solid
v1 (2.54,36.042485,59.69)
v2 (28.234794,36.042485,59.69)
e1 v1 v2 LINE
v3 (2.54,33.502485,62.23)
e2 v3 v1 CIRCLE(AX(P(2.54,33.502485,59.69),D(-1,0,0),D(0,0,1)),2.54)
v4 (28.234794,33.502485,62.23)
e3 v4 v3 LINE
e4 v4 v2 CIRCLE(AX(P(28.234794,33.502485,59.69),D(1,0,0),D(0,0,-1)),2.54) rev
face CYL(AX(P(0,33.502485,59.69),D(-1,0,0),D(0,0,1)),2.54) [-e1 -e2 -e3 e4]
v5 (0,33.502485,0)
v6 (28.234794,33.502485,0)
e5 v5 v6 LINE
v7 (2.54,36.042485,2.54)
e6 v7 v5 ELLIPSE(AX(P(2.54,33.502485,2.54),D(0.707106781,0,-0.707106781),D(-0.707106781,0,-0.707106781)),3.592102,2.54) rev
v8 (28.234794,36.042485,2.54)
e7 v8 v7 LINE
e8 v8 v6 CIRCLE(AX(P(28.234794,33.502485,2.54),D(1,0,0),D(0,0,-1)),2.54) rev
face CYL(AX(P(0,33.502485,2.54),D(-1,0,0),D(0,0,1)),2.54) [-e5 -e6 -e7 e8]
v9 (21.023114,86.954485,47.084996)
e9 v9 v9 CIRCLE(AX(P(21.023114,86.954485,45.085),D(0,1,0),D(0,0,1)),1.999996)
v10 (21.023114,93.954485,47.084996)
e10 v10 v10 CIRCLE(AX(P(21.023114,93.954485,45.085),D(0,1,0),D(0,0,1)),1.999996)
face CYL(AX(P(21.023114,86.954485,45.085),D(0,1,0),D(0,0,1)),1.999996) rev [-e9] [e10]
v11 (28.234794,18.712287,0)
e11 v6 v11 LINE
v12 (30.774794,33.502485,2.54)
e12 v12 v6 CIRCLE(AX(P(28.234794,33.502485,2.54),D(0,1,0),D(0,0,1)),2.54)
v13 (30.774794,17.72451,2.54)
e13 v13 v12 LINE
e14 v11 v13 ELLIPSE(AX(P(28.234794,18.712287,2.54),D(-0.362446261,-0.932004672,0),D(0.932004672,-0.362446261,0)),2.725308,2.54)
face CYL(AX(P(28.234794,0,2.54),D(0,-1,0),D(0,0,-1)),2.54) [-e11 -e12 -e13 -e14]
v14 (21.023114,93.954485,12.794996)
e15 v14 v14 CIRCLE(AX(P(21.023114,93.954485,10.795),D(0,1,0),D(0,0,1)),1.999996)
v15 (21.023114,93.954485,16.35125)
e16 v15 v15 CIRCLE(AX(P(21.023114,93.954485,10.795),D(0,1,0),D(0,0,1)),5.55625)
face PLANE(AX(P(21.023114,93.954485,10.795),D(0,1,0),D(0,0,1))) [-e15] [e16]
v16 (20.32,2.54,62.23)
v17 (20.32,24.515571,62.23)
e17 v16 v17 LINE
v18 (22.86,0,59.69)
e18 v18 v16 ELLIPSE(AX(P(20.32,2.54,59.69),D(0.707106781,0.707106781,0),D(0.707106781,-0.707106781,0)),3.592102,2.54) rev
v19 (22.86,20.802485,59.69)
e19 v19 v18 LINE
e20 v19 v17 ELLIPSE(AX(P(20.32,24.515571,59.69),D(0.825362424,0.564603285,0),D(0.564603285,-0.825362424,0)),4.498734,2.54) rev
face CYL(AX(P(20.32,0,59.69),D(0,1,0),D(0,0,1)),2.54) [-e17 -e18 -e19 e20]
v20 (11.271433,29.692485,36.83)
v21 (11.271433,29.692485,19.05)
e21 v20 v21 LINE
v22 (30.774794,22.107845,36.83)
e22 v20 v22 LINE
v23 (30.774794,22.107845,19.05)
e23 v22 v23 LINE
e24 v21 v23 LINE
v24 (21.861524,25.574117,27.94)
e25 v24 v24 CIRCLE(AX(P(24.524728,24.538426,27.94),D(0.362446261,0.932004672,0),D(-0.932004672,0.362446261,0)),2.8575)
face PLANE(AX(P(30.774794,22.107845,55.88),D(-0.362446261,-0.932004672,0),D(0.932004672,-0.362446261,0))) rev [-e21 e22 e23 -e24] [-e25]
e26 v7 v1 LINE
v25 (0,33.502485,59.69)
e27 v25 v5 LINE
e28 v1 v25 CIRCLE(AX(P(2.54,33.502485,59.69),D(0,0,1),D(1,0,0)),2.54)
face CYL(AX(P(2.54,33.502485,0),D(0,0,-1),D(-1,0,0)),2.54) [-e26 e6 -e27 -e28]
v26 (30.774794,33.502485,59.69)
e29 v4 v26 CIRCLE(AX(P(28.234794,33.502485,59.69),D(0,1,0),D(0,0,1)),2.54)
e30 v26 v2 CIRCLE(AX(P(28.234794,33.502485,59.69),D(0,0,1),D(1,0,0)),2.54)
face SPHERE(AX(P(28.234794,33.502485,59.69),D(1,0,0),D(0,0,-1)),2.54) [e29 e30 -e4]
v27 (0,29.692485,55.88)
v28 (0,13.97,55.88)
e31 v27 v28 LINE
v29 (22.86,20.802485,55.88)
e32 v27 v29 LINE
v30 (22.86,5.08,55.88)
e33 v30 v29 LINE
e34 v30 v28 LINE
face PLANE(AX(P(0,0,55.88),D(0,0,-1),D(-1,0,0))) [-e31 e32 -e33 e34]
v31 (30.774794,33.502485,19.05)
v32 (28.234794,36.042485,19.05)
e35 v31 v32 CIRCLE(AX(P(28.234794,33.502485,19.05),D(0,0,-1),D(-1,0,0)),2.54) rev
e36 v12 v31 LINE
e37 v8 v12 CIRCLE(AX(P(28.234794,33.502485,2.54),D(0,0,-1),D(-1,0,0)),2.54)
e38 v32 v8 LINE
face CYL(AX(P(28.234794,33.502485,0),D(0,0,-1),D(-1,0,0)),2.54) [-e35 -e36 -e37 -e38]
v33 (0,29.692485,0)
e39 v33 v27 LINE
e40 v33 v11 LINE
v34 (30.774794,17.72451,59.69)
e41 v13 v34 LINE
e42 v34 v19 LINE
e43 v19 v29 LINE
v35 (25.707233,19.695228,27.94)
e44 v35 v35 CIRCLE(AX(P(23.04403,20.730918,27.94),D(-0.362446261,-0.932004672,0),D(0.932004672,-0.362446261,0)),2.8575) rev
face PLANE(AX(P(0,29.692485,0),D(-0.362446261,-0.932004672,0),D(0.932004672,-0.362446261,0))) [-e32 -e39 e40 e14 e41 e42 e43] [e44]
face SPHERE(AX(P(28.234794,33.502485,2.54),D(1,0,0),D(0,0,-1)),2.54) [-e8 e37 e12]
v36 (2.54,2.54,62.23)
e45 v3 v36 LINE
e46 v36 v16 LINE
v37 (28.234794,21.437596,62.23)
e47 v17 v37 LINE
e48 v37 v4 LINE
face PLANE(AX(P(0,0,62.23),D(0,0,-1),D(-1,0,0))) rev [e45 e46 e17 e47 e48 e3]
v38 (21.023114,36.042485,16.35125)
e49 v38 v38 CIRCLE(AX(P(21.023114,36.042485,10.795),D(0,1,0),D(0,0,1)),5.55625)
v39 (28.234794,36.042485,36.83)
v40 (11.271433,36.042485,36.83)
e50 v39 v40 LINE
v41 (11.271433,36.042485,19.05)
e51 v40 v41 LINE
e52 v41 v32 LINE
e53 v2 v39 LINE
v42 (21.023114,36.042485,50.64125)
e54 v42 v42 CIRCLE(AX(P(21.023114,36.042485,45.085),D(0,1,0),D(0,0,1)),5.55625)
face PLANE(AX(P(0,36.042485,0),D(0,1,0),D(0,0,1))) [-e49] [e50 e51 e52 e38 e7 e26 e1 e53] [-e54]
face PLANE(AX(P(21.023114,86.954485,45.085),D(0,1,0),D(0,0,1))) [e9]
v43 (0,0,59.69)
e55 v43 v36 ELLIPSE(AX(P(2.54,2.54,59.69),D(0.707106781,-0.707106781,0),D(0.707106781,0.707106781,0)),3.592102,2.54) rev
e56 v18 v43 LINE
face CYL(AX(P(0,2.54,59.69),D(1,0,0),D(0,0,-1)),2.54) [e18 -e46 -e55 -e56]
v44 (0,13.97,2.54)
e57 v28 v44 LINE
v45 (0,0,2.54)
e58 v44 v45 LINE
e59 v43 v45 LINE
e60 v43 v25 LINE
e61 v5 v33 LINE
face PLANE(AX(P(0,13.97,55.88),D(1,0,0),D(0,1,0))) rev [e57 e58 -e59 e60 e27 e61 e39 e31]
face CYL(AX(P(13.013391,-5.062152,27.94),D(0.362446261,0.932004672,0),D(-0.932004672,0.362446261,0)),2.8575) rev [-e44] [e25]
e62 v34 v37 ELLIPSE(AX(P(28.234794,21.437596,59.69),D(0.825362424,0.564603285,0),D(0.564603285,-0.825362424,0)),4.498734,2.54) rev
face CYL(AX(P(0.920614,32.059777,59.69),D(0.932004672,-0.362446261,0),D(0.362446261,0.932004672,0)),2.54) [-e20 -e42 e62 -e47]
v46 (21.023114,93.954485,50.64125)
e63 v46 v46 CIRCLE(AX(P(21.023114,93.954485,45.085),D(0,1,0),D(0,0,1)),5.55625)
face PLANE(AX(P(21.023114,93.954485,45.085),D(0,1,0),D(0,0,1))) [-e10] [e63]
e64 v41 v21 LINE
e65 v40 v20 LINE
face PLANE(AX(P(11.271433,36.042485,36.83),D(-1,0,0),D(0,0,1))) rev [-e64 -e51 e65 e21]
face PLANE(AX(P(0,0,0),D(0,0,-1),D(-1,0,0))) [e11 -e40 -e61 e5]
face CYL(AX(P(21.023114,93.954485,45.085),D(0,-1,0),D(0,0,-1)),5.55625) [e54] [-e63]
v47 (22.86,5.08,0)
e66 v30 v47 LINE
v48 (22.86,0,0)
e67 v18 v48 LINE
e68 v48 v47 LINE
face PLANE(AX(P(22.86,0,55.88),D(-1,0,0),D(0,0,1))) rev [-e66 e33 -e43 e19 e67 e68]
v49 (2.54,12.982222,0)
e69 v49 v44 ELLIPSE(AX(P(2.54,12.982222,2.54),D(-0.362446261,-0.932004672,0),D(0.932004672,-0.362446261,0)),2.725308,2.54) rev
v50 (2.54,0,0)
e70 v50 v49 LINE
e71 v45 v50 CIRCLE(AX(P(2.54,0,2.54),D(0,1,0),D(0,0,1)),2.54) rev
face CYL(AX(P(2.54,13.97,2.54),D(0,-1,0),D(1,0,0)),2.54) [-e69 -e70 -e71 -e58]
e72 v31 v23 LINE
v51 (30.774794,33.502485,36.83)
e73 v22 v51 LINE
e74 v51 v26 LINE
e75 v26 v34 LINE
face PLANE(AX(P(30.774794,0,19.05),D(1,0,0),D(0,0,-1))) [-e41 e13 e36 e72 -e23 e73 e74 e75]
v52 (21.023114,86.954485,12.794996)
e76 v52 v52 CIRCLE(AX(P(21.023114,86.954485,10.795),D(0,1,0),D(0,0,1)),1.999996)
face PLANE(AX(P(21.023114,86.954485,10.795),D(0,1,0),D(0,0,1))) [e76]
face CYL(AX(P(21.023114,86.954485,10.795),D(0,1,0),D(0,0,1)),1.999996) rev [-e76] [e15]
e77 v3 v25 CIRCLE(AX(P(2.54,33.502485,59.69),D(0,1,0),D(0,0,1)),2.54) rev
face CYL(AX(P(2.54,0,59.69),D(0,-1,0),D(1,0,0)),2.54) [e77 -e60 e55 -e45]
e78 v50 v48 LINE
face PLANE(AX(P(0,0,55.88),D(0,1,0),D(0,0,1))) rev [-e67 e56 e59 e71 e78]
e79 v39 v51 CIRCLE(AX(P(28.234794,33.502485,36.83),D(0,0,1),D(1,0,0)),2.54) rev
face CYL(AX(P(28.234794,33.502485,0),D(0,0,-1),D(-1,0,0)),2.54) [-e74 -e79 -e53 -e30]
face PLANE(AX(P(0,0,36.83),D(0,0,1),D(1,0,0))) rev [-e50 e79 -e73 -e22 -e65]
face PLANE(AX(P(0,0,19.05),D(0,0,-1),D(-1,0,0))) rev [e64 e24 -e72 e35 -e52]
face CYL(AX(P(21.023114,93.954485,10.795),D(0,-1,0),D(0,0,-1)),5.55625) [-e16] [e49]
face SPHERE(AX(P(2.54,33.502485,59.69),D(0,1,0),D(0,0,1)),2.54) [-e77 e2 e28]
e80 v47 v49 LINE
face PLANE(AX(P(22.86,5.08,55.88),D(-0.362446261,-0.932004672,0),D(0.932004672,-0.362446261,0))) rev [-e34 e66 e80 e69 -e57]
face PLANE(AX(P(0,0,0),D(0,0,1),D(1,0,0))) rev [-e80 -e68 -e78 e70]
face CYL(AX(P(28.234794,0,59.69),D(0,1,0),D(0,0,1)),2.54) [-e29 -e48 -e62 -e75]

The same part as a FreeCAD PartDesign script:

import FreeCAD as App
import Part
import Sketcher
from FreeCAD import Vector
Q = App.Units.Quantity


def edges_at(feature, points):
    """Names of the edges that pass closest to the given points."""
    edges = feature.Shape.Edges
    near = lambda p: min(range(len(edges)), key=lambda i: edges[i].distToShape(Part.Vertex(*p))[0])
    return sorted({f"Edge{near(p) + 1}" for p in points})


def add_polygon(sketch, points):
    """Adds a closed chain of lines whose ends are joined by coincident constraints."""
    first, n = sketch.GeometryCount, len(points)
    for a, b in zip(points, points[1:] + points[:1]):
        sketch.addGeometry(Part.LineSegment(App.Vector(*a, 0), App.Vector(*b, 0)), False)
    for i in range(n):
        sketch.addConstraint(Sketcher.Constraint("Coincident", first + i, 2, first + (i + 1) % n, 1))

doc = App.newDocument("Part")
body = doc.addObject("PartDesign::Body", "Body")

# Sketch on XY plane
sketch1 = doc.addObject("Sketcher::SketchObject", "Sketch")
body.addObject(sketch1)
sketch1.AttachmentSupport = (doc.XY_Plane, [""])
sketch1.MapMode = "FlatFace"
add_polygon(sketch1, [(0, 0), (23, 0), (23, 5), (0, 14)])  # lines 0-3
sketch1.addConstraint(Sketcher.Constraint("Horizontal", 0))
sketch1.addConstraint(Sketcher.Constraint("Vertical", 1))
sketch1.addConstraint(Sketcher.Constraint("Vertical", 3))
sketch1.addConstraint(Sketcher.Constraint("Coincident", 3, 2, -1, 1))
sketch1.addConstraint(Sketcher.Constraint("DistanceX", 0, 1, 0, 2, Q("0.9 in")))
sketch1.addConstraint(Sketcher.Constraint("DistanceY", 1, 1, 1, 2, Q("0.2 in")))
sketch1.addConstraint(Sketcher.Constraint("DistanceY", 3, 2, 3, 1, Q("0.55 in")))
pad1 = doc.addObject("PartDesign::Pad", "Pad")
body.addObject(pad1)
pad1.Profile = sketch1
pad1.Length = Q("2.2 in")

# Sketch on XY plane
sketch2 = doc.addObject("Sketcher::SketchObject", "Sketch001")
body.addObject(sketch2)
sketch2.AttachmentSupport = (doc.XY_Plane, [""])
sketch2.MapMode = "FlatFace"
sketch2.AttachmentOffset = App.Placement(Vector(0, 0, 2.2 * 25.4), App.Rotation())
add_polygon(sketch2, [(0, 30), (0, 0), (23, 0), (23, 30)])  # lines 0-3
sketch2.addConstraint(Sketcher.Constraint("Vertical", 0))
sketch2.addConstraint(Sketcher.Constraint("Horizontal", 1))
sketch2.addConstraint(Sketcher.Constraint("Vertical", 2))
sketch2.addConstraint(Sketcher.Constraint("Horizontal", 3))
sketch2.addConstraint(Sketcher.Constraint("Coincident", 0, 2, -1, 1))
sketch2.addConstraint(Sketcher.Constraint("DistanceX", 1, 1, 1, 2, Q("0.9 in")))
sketch2.addConstraint(Sketcher.Constraint("DistanceY", 0, 2, 0, 1, Q("29.692485 mm")))
pad2 = doc.addObject("PartDesign::Pad", "Pad001")
body.addObject(pad2)
pad2.Profile = sketch2
pad2.Length = Q("0.25 in")

# Sketch on XY plane
sketch3 = doc.addObject("Sketcher::SketchObject", "Sketch002")
body.addObject(sketch3)
sketch3.AttachmentSupport = (doc.XY_Plane, [""])
sketch3.MapMode = "FlatFace"
sketch3.AttachmentOffset = App.Placement(Vector(0, 0, 2.2 * 25.4), App.Rotation())
add_polygon(sketch3, [(0, 30), (31, 30), (31, 18)])  # lines 0-2
sketch3.addConstraint(Sketcher.Constraint("Horizontal", 0))
sketch3.addConstraint(Sketcher.Constraint("Vertical", 1))
sketch3.addConstraint(Sketcher.Constraint("PointOnObject", 2, 2, -2))
sketch3.addConstraint(Sketcher.Constraint("Distance", 2, Q("1.3 in")))
sketch3.addConstraint(Sketcher.Constraint("DistanceX", 0, 1, 0, 2, Q("30.774794 mm")))
sketch3.addConstraint(Sketcher.Constraint("DistanceY", -1, 1, 1, 2, Q("17.72451 mm")))
pad3 = doc.addObject("PartDesign::Pad", "Pad002")
body.addObject(pad3)
pad3.Profile = sketch3
pad3.Length = Q("2.2 in")
pad3.Reversed = True

# Sketch on XY plane
sketch4 = doc.addObject("Sketcher::SketchObject", "Sketch003")
body.addObject(sketch4)
sketch4.AttachmentSupport = (doc.XY_Plane, [""])
sketch4.MapMode = "FlatFace"
add_polygon(sketch4, [(31, 22), (11, 30), (31, 30)])  # lines 0-2
sketch4.addConstraint(Sketcher.Constraint("Horizontal", 1))
sketch4.addConstraint(Sketcher.Constraint("Vertical", 2))
sketch4.addConstraint(Sketcher.Constraint("DistanceX", 1, 1, 1, 2, Q("19.503361 mm")))
sketch4.addConstraint(Sketcher.Constraint("DistanceY", 2, 2, 2, 1, Q("7.58464 mm")))
sketch4.addConstraint(Sketcher.Constraint("DistanceX", -1, 1, 0, 2, Q("11.271433 mm")))
sketch4.addConstraint(Sketcher.Constraint("DistanceY", -1, 1, 0, 2, Q("29.692485 mm")))
pocket1 = doc.addObject("PartDesign::Pocket", "Pocket")
body.addObject(pocket1)
pocket1.Profile = sketch4
pocket1.Length = Q("2.2 in")
pocket1.Reversed = True

# Sketch on XY plane
sketch5 = doc.addObject("Sketcher::SketchObject", "Sketch004")
body.addObject(sketch5)
sketch5.AttachmentSupport = (doc.XY_Plane, [""])
sketch5.MapMode = "FlatFace"
sketch5.AttachmentOffset = App.Placement(Vector(0, 0, 2.2 * 25.4), App.Rotation())
add_polygon(sketch5, [(31, 22), (31, 30), (11, 30)])  # lines 0-2
sketch5.addConstraint(Sketcher.Constraint("Vertical", 0))
sketch5.addConstraint(Sketcher.Constraint("Horizontal", 1))
sketch5.addConstraint(Sketcher.Constraint("DistanceX", 1, 2, 1, 1, Q("19.503361 mm")))
sketch5.addConstraint(Sketcher.Constraint("DistanceY", 0, 1, 0, 2, Q("7.58464 mm")))
sketch5.addConstraint(Sketcher.Constraint("DistanceX", -1, 1, 0, 2, Q("30.774794 mm")))
sketch5.addConstraint(Sketcher.Constraint("DistanceY", -1, 1, 0, 2, Q("29.692485 mm")))
pad4 = doc.addObject("PartDesign::Pad", "Pad003")
body.addObject(pad4)
pad4.Profile = sketch5
pad4.Length = Q("0.75 in")
pad4.Reversed = True

# Sketch on an angled plane
sketch6 = doc.addObject("Sketcher::SketchObject", "Sketch005")
body.addObject(sketch6)
sketch6.Placement = App.Placement(Vector(11.510867, 29.599372, 0), App.Rotation(Vector(0.932004672, -0.362446261, 0), Vector(0, 0, -1.000000001), Vector(0.362446261, 0.932004672, 0), "ZXY"))
sketch6.addGeometry(Part.Circle(Vector(14, -27.9, 0), Vector(0, 0, 1), 2.9), False)
sketch6.addConstraint(Sketcher.Constraint("Diameter", 0, Q("0.225 in")))
sketch6.addConstraint(Sketcher.Constraint("DistanceY", 0, 3, -1, 1, Q("1.1 in")))
sketch6.addConstraint(Sketcher.Constraint("DistanceX", -1, 1, 0, 3, Q("13.9633 mm")))
pocket2 = doc.addObject("PartDesign::Pocket", "Pocket001")
body.addObject(pocket2)
pocket2.Profile = sketch6
pocket2.Length = 4.085289
body2 = doc.addObject("PartDesign::Body", "Body001")

# Sketch on XY plane
sketch7 = doc.addObject("Sketcher::SketchObject", "Sketch006")
body2.addObject(sketch7)
sketch7.AttachmentSupport = (doc.getObject("XY_Plane001"), [""])
sketch7.MapMode = "FlatFace"
add_polygon(sketch7, [(31, 30), (31, 22), (11, 30)])  # lines 0-2
sketch7.addConstraint(Sketcher.Constraint("Vertical", 0))
sketch7.addConstraint(Sketcher.Constraint("Horizontal", 2))
sketch7.addConstraint(Sketcher.Constraint("DistanceX", 2, 1, 2, 2, Q("19.503361 mm")))
sketch7.addConstraint(Sketcher.Constraint("DistanceY", 0, 2, 0, 1, Q("7.58464 mm")))
sketch7.addConstraint(Sketcher.Constraint("DistanceX", -1, 1, 0, 2, Q("30.774794 mm")))
sketch7.addConstraint(Sketcher.Constraint("DistanceY", -1, 1, 0, 2, Q("22.107845 mm")))
pad5 = doc.addObject("PartDesign::Pad", "Pad004")
body2.addObject(pad5)
pad5.Profile = sketch7
pad5.Length = Q("0.75 in")
doc.recompute()

boolean = doc.addObject("PartDesign::Boolean", "Boolean")
body.addObject(boolean)
boolean.Type = "Fuse"
boolean.addObjects([body2])

# Sketch on XZ plane
sketch8 = doc.addObject("Sketcher::SketchObject", "Sketch007")
body.addObject(sketch8)
sketch8.AttachmentSupport = (doc.XZ_Plane, [""])
sketch8.MapMode = "FlatFace"
sketch8.AttachmentOffset = App.Placement(Vector(0, 0, -29.692485), App.Rotation())
sketch8.addGeometry(Part.Circle(Vector(21, 11, 0), Vector(0, 0, 1), 6), False)
sketch8.addGeometry(Part.Circle(Vector(21, 45, 0), Vector(0, 0, 1), 6), False)
sketch8.addConstraint(Sketcher.Constraint("Equal", 0, 1))
sketch8.addConstraint(Sketcher.Constraint("Vertical", 0, 3, 1, 3))
sketch8.addConstraint(Sketcher.Constraint("Diameter", 0, Q("0.4375 in")))
sketch8.addConstraint(Sketcher.Constraint("DistanceY", 0, 3, 1, 3, Q("1.35 in")))
sketch8.addConstraint(Sketcher.Constraint("DistanceY", -1, 1, 0, 3, Q("0.425 in")))
sketch8.addConstraint(Sketcher.Constraint("DistanceX", -1, 1, 0, 3, Q("21.023114 mm")))
pad6 = doc.addObject("PartDesign::Pad", "Pad005")
body.addObject(pad6)
pad6.Profile = sketch8
pad6.Length = Q("2.53 in")
pad6.Reversed = True

# Sketch on XZ plane
sketch9 = doc.addObject("Sketcher::SketchObject", "Sketch008")
body.addObject(sketch9)
sketch9.AttachmentSupport = (doc.XZ_Plane, [""])
sketch9.MapMode = "FlatFace"
sketch9.AttachmentOffset = App.Placement(Vector(0, 0, -93.954485), App.Rotation())
sketch9.addGeometry(Part.Circle(Vector(21, 10.8, 0), Vector(0, 0, 1), 2), False)
sketch9.addGeometry(Part.Circle(Vector(21, 45.1, 0), Vector(0, 0, 1), 2), False)
sketch9.addConstraint(Sketcher.Constraint("Equal", 0, 1))
sketch9.addConstraint(Sketcher.Constraint("Vertical", 0, 3, 1, 3))
sketch9.addConstraint(Sketcher.Constraint("DistanceY", 0, 3, 1, 3, Q("1.35 in")))
sketch9.addConstraint(Sketcher.Constraint("DistanceY", -1, 1, 0, 3, Q("0.425 in")))
sketch9.addConstraint(Sketcher.Constraint("Diameter", 0, Q("3.999992 mm")))
sketch9.addConstraint(Sketcher.Constraint("DistanceX", -1, 1, 0, 3, Q("21.023114 mm")))
pocket3 = doc.addObject("PartDesign::Pocket", "Pocket002")
body.addObject(pocket3)
pocket3.Profile = sketch9
pocket3.Length = 7
pocket3.Reversed = True

# Sketch on XY plane
sketch10 = doc.addObject("Sketcher::SketchObject", "Sketch009")
body.addObject(sketch10)
sketch10.AttachmentSupport = (doc.XY_Plane, [""])
sketch10.MapMode = "FlatFace"
sketch10.AttachmentOffset = App.Placement(Vector(0, 0, 2.2 * 25.4), App.Rotation())
add_polygon(sketch10, [(31, 30), (23, 30), (23, 21), (31, 18)])  # lines 0-3
sketch10.addConstraint(Sketcher.Constraint("Horizontal", 0))
sketch10.addConstraint(Sketcher.Constraint("Vertical", 1))
sketch10.addConstraint(Sketcher.Constraint("Vertical", 3))
sketch10.addConstraint(Sketcher.Constraint("DistanceY", 1, 2, 1, 1, Q("0.35 in")))
sketch10.addConstraint(Sketcher.Constraint("DistanceX", -1, 1, 0, 2, Q("0.9 in")))
sketch10.addConstraint(Sketcher.Constraint("DistanceX", 0, 2, 0, 1, Q("7.914794 mm")))
sketch10.addConstraint(Sketcher.Constraint("DistanceY", 3, 1, 3, 2, Q("11.967976 mm")))
sketch10.addConstraint(Sketcher.Constraint("DistanceY", -1, 1, 2, 2, Q("17.72451 mm")))
pad7 = doc.addObject("PartDesign::Pad", "Pad006")
body.addObject(pad7)
pad7.Profile = sketch10
pad7.Length = Q("0.25 in")

# Sketch on XZ plane
sketch11 = doc.addObject("Sketcher::SketchObject", "Sketch010")
body.addObject(sketch11)
sketch11.AttachmentSupport = (doc.XZ_Plane, [""])
sketch11.MapMode = "FlatFace"
sketch11.AttachmentOffset = App.Placement(Vector(0, 0, -29.692485), App.Rotation())
add_polygon(sketch11, [(0, 0), (0, 62), (31, 62), (31, 37), (11, 37), (11, 19), (31, 19), (31, 0)])  # lines 0-7
sketch11.addConstraint(Sketcher.Constraint("Vertical", 0))
sketch11.addConstraint(Sketcher.Constraint("Horizontal", 1))
sketch11.addConstraint(Sketcher.Constraint("Vertical", 2))
sketch11.addConstraint(Sketcher.Constraint("Horizontal", 3))
sketch11.addConstraint(Sketcher.Constraint("Vertical", 4))
sketch11.addConstraint(Sketcher.Constraint("Horizontal", 5))
sketch11.addConstraint(Sketcher.Constraint("Vertical", 6))
sketch11.addConstraint(Sketcher.Constraint("Horizontal", 7))
sketch11.addConstraint(Sketcher.Constraint("Coincident", 7, 2, -1, 1))
sketch11.addConstraint(Sketcher.Constraint("Vertical", 2, 2, 5, 2))
sketch11.addConstraint(Sketcher.Constraint("DistanceY", 2, 2, 2, 1, Q("1 in")))
sketch11.addConstraint(Sketcher.Constraint("DistanceY", 4, 2, 4, 1, Q("0.7 in")))
sketch11.addConstraint(Sketcher.Constraint("DistanceY", 0, 1, 0, 2, Q("2.45 in")))
sketch11.addConstraint(Sketcher.Constraint("DistanceX", 3, 2, 3, 1, Q("19.503361 mm")))
sketch11.addConstraint(Sketcher.Constraint("DistanceX", 1, 1, 1, 2, Q("30.774794 mm")))
pad8 = doc.addObject("PartDesign::Pad", "Pad007")
body.addObject(pad8)
pad8.Profile = sketch11
pad8.Length = Q("0.25 in")
pad8.Reversed = True
doc.recompute()

fillet = doc.addObject("PartDesign::Fillet", "Fillet")
body.addObject(fillet)
fillet.Base = (pad8, edges_at(pad8, [
    (0, 18.021, 62.23),
    (15.387, 36.042, 62.23),
    (30.775, 26.883, 0),
    (30.775, 26.883, 62.23),
    (26.817, 19.263, 62.23),
    (22.86, 10.401, 62.23),
    (11.43, 0, 62.23),
    (0, 6.985, 0),
    (15.387, 36.042, 0),
    (0, 36.042, 31.115),
    (30.775, 36.042, 49.53),
    (30.775, 36.042, 9.525),
]))
fillet.Radius = Q("0.1 in")

doc.recompute()
